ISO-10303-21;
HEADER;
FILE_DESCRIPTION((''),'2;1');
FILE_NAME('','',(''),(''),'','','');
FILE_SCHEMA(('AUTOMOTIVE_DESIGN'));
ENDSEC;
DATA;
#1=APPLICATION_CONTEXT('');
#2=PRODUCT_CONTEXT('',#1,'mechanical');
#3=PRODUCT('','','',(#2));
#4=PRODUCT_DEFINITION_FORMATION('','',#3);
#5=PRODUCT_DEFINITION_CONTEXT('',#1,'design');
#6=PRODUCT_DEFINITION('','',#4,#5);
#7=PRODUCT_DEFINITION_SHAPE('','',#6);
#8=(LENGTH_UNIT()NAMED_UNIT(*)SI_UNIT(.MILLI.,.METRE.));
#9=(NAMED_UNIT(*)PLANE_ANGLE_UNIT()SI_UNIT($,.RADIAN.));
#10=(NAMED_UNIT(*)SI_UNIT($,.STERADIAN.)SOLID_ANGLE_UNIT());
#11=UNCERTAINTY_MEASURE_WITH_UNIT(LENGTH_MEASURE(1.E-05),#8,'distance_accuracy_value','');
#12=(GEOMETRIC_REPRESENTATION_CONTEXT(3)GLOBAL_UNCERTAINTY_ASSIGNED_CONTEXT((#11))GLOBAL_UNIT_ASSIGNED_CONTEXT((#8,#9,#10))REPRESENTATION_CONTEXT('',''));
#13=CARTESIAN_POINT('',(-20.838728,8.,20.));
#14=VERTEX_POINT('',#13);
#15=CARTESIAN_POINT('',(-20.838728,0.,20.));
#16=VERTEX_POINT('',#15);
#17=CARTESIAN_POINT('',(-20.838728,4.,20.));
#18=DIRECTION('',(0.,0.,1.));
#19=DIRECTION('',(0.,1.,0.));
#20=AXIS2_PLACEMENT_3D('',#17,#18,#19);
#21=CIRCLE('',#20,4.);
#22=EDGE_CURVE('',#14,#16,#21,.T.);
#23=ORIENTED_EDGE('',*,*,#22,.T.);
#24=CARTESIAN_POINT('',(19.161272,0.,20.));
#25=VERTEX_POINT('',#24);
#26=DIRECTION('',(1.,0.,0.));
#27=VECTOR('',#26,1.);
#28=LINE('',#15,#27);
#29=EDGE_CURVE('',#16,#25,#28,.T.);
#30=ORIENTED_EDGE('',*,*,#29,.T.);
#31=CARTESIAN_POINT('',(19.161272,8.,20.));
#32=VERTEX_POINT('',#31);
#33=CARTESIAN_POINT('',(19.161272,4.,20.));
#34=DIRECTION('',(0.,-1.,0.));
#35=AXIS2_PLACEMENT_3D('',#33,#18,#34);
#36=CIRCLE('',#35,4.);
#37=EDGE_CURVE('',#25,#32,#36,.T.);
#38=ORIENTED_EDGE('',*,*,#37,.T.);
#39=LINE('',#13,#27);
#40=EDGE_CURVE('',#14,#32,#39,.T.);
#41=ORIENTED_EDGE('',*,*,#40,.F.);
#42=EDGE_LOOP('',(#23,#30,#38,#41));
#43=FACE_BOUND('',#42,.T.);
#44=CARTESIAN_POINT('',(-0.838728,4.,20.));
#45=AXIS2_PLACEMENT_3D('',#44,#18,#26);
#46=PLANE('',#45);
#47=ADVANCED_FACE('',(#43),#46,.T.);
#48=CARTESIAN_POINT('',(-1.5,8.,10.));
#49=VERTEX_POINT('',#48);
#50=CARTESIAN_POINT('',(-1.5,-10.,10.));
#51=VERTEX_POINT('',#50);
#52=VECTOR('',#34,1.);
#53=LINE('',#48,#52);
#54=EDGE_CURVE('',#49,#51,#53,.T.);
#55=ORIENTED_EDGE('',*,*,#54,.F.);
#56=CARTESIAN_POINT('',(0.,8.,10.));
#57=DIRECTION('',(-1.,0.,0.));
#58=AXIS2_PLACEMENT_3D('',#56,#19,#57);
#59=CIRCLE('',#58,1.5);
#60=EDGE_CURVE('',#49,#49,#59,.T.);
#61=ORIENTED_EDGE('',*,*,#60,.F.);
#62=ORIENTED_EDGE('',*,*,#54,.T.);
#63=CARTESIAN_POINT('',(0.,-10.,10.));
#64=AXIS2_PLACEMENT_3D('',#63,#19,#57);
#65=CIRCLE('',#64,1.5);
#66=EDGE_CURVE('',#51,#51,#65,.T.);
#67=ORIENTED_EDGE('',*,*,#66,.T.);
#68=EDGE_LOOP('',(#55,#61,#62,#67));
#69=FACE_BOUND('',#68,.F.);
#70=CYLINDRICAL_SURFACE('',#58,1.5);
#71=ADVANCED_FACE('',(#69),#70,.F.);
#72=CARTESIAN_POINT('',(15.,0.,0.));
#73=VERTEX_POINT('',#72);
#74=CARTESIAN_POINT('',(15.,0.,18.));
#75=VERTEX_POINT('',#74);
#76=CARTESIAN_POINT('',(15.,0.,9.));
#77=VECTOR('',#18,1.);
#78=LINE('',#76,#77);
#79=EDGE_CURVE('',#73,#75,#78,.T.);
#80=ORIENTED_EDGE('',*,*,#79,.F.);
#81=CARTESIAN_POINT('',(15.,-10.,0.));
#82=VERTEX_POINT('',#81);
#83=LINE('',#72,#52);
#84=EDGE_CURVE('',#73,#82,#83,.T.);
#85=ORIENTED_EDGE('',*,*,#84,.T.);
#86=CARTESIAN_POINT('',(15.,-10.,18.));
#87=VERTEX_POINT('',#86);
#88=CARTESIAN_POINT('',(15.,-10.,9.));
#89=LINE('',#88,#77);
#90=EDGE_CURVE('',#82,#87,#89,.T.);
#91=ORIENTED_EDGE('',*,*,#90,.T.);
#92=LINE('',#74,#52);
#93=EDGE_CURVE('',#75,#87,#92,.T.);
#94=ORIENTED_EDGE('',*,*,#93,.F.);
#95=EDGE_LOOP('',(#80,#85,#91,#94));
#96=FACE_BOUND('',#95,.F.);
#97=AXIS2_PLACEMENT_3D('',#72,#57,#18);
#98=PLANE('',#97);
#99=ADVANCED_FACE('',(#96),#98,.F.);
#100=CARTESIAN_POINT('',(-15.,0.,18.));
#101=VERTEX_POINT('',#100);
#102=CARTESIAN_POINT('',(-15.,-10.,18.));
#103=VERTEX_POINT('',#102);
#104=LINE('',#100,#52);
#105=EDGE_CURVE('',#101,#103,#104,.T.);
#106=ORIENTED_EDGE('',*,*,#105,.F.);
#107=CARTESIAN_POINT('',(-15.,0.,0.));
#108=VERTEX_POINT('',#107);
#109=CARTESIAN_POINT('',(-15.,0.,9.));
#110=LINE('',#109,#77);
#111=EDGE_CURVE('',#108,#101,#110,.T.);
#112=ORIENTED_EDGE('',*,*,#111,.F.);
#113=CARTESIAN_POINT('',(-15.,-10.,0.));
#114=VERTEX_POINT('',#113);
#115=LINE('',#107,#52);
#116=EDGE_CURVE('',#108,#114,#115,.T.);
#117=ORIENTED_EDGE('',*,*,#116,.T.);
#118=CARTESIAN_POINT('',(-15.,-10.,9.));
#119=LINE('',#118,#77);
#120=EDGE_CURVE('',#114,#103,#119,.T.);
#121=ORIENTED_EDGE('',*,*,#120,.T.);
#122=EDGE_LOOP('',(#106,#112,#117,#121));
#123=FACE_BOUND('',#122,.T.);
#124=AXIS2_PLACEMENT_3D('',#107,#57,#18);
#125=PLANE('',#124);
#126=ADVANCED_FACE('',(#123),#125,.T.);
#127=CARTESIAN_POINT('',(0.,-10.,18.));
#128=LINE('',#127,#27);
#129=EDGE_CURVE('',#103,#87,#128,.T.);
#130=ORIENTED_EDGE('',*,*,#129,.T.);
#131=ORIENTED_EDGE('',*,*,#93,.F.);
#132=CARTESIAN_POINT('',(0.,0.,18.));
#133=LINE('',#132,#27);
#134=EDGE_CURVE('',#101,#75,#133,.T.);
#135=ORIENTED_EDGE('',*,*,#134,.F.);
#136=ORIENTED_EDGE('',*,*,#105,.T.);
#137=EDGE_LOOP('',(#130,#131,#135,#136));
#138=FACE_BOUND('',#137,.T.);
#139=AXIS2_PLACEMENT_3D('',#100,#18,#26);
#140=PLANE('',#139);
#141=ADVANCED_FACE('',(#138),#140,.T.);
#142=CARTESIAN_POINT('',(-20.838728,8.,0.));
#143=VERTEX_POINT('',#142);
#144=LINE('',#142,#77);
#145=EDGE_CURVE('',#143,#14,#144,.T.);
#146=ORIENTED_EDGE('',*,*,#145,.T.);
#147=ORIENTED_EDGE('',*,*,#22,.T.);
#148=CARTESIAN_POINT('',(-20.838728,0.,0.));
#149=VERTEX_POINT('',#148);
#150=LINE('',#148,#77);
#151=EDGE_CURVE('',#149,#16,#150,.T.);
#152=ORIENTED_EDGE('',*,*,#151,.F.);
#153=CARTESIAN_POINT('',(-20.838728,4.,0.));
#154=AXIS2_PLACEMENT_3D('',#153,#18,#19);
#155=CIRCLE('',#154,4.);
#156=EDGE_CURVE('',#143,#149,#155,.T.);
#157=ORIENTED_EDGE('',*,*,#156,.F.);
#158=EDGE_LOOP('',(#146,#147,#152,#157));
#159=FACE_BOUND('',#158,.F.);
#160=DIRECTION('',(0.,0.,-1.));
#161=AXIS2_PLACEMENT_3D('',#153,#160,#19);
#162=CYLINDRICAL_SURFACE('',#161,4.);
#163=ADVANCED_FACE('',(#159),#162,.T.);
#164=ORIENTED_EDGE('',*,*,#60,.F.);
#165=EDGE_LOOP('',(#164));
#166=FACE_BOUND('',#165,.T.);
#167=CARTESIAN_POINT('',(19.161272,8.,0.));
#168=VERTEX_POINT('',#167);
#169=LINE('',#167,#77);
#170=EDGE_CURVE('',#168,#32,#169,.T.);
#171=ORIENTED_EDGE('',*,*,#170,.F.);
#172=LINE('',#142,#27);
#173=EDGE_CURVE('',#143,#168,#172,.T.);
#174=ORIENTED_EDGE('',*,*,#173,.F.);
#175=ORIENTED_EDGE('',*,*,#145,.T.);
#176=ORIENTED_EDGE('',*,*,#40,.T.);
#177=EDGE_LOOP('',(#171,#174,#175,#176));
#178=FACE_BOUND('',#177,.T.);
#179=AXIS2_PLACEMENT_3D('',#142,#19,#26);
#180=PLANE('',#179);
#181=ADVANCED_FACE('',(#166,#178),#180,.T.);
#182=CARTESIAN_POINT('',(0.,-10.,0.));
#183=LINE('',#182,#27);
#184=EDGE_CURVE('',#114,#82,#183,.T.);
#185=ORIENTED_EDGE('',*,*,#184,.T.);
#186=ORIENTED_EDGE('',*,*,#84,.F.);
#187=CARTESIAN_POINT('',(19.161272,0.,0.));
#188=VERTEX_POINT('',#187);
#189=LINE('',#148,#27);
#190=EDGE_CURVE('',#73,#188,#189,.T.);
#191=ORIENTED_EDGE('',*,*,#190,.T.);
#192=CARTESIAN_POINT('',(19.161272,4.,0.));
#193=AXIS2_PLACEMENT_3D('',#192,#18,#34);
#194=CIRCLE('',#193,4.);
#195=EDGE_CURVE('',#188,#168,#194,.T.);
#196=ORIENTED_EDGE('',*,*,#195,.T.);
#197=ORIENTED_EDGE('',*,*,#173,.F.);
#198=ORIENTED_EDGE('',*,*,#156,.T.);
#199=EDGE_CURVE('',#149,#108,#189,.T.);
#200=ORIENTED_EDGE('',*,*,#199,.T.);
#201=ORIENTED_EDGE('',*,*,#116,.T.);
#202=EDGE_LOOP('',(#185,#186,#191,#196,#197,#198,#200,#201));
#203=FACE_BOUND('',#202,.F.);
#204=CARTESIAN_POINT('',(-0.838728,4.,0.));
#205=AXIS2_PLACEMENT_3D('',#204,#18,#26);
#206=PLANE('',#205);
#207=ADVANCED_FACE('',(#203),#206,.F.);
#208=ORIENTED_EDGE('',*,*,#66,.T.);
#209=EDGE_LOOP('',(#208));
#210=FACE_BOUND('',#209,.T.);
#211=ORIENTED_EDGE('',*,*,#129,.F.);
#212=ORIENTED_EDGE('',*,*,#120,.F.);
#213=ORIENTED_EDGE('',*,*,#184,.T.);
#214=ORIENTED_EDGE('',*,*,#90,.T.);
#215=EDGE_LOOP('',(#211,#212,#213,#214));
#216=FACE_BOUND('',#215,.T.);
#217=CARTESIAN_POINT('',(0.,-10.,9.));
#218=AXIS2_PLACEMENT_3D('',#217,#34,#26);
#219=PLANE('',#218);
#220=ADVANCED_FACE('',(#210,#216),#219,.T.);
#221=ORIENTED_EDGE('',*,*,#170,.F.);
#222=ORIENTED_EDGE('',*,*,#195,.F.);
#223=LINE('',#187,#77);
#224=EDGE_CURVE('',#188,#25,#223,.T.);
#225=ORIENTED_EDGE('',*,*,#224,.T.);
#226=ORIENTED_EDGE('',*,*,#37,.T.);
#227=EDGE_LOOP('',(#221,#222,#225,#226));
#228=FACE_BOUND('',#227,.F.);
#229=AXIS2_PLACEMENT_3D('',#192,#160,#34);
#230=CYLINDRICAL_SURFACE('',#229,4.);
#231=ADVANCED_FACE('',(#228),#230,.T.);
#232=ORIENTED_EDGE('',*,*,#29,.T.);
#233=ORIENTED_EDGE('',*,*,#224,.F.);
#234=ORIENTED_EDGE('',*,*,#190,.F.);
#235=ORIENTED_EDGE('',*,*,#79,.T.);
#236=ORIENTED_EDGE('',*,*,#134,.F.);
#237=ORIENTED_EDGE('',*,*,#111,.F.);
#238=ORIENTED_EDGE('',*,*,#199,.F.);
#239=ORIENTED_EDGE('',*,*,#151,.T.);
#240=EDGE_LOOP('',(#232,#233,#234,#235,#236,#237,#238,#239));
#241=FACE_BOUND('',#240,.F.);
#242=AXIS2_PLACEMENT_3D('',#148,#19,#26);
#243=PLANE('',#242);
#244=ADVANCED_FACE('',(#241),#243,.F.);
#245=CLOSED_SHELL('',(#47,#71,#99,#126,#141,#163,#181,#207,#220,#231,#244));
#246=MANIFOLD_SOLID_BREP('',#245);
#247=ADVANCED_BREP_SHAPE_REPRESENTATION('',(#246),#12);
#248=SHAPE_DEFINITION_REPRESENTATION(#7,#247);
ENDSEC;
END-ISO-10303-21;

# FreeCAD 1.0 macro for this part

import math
import FreeCAD as App
import Part
import Sketcher

V = App.Vector

doc = App.newDocument("Part")
body = doc.addObject("PartDesign::Body", "Body")

# Sketch on XY plane
sketch1 = body.newObject("Sketcher::SketchObject", "Sketch")
sketch1.AttachmentSupport = (doc.getObject("XY_Plane"), [""])
sketch1.MapMode = "FlatFace"
sketch1.addGeometry([
    Part.ArcOfCircle(Part.Circle(V(-20.8, 4, 0), V(0, 0, 1), 4), math.radians(90), math.radians(270)),
    Part.LineSegment(V(-20.8, 0, 0), V(19.2, 0, 0)),
    Part.ArcOfCircle(Part.Circle(V(19.2, 4, 0), V(0, 0, 1), 4), math.radians(-90), math.radians(90)),
    Part.LineSegment(V(19.2, 8, 0), V(-20.8, 8, 0)),
], False)
sketch1.addConstraint([
    Sketcher.Constraint("Tangent", 0, 2, 1, 1),
    Sketcher.Constraint("Tangent", 1, 2, 2, 1),
    Sketcher.Constraint("Tangent", 2, 2, 3, 1),
    Sketcher.Constraint("Tangent", 3, 2, 0, 1),
    Sketcher.Constraint("Horizontal", 1),
    Sketcher.Constraint("Horizontal", 3),
    Sketcher.Constraint("PointOnObject", 0, 2, -1),
    Sketcher.Constraint("Radius", 0, 4.0),
    Sketcher.Constraint("DistanceX", 1, 1, 1, 2, 40.0),
    Sketcher.Constraint("DistanceX", 0, 3, -1, 1, 20.838728),
])
pad1 = body.newObject("PartDesign::Pad", "Pad")
pad1.Profile = sketch1
pad1.Length = 20

# Sketch on XZ plane
sketch2 = body.newObject("Sketcher::SketchObject", "Sketch001")
sketch2.AttachmentSupport = (doc.getObject("XZ_Plane"), [""])
sketch2.MapMode = "FlatFace"
sketch2.addGeometry([
    Part.LineSegment(V(-15, 18, 0), V(-15, 0, 0)),
    Part.LineSegment(V(-15, 0, 0), V(15, 0, 0)),
    Part.LineSegment(V(15, 0, 0), V(15, 18, 0)),
    Part.LineSegment(V(15, 18, 0), V(-15, 18, 0)),
], False)
sketch2.addConstraint([
    Sketcher.Constraint("Coincident", 0, 2, 1, 1),
    Sketcher.Constraint("Coincident", 1, 2, 2, 1),
    Sketcher.Constraint("Coincident", 2, 2, 3, 1),
    Sketcher.Constraint("Coincident", 3, 2, 0, 1),
    Sketcher.Constraint("Vertical", 0),
    Sketcher.Constraint("Horizontal", 1),
    Sketcher.Constraint("Vertical", 2),
    Sketcher.Constraint("Horizontal", 3),
    Sketcher.Constraint("Symmetric", 0, 2, 1, 2, -1, 1),
    Sketcher.Constraint("DistanceX", 1, 1, 1, 2, 30.0),
    Sketcher.Constraint("DistanceY", 0, 2, 0, 1, 18.0),
])
pad2 = body.newObject("PartDesign::Pad", "Pad001")
pad2.Profile = sketch2
pad2.Length = 10

# Sketch on XZ plane
sketch3 = body.newObject("Sketcher::SketchObject", "Sketch002")
sketch3.AttachmentSupport = (doc.getObject("XZ_Plane"), [""])
sketch3.MapMode = "FlatFace"
sketch3.AttachmentOffset = App.Placement(V(0, 0, -8), App.Rotation())
sketch3.addGeometry(Part.Circle(V(0, 10, 0), V(0, 0, 1), 1.5), False)
sketch3.addConstraint([
    Sketcher.Constraint("PointOnObject", 0, 3, -2),
    Sketcher.Constraint("Diameter", 0, 3.0),
    Sketcher.Constraint("DistanceY", -1, 1, 0, 3, 10.0),
])
pocket1 = body.newObject("PartDesign::Pocket", "Pocket")
pocket1.Profile = sketch3
pocket1.Type = "ThroughAll"
pocket1.Reversed = True

doc.recompute()
